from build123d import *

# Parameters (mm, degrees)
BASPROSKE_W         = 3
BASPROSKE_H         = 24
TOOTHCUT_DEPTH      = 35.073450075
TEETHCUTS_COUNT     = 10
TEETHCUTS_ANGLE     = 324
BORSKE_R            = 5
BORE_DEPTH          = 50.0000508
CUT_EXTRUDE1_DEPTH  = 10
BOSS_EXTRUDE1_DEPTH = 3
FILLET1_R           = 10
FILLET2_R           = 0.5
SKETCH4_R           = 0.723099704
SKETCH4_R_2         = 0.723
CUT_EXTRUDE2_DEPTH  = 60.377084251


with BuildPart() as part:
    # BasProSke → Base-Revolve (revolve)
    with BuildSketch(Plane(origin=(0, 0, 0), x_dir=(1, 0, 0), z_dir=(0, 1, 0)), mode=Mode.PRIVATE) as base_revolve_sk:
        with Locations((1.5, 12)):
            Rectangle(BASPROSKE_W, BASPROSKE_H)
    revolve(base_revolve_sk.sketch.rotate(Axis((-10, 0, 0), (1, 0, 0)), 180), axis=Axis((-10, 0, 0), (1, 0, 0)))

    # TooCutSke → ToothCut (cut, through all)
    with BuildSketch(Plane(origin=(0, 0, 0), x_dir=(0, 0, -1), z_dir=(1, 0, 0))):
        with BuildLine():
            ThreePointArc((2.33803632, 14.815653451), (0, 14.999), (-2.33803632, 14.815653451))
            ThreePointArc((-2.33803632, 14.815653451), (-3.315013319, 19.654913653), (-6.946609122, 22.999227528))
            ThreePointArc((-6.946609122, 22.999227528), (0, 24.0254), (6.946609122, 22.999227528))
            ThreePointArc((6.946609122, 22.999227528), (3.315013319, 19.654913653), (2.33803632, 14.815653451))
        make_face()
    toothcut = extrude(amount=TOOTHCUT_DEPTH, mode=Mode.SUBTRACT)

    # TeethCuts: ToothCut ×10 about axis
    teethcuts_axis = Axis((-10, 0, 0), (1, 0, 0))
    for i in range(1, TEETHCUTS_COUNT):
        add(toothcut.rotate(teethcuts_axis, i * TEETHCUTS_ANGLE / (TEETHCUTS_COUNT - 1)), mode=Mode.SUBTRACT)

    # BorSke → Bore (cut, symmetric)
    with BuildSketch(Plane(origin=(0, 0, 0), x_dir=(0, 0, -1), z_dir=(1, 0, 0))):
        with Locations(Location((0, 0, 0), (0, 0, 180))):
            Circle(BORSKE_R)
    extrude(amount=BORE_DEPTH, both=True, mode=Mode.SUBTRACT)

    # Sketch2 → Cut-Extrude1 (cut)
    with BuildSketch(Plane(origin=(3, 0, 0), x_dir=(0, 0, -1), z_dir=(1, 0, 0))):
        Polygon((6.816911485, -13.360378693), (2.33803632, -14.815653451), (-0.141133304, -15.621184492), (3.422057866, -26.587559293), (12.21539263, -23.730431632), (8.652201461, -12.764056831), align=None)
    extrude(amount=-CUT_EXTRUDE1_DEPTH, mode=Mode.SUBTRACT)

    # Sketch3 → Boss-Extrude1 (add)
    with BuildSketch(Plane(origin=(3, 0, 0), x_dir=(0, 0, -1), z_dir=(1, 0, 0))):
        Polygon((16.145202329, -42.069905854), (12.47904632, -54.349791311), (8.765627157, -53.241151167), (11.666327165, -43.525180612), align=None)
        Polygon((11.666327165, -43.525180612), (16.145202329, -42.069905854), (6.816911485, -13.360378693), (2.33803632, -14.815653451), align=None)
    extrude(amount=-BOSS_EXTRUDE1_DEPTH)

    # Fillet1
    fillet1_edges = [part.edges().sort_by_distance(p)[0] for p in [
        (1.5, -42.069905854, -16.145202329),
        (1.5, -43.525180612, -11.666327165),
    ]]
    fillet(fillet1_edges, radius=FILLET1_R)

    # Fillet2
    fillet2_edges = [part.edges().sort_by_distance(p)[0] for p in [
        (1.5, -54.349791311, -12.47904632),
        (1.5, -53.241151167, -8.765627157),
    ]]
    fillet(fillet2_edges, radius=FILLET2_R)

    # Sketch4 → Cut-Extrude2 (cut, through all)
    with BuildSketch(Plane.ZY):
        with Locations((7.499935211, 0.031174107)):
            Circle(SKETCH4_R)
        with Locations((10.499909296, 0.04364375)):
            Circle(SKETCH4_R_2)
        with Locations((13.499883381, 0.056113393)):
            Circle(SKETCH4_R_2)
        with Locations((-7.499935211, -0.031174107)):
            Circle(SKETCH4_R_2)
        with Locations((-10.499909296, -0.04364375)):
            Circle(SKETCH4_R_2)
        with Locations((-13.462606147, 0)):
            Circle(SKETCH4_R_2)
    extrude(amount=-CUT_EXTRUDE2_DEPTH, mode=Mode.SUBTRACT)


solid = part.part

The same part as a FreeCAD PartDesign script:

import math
import FreeCAD as App
import Part
import Sketcher

V = App.Vector
Q = App.Units.Quantity


def edges_at(feature, points):
    """Names of the edges that pass closest to the given points."""
    edges = feature.Shape.Edges
    near = lambda p: min(range(len(edges)), key=lambda i: edges[i].distToShape(Part.Vertex(*p))[0])
    return sorted({f"Edge{near(p) + 1}" for p in points})

doc = App.newDocument("Part")
body = doc.addObject("PartDesign::Body", "Body")

# Sketch on XZ plane
sketch1 = body.newObject("Sketcher::SketchObject", "Sketch")
sketch1.AttachmentSupport = (doc.getObject("XZ_Plane"), [""])
sketch1.MapMode = "FlatFace"
sketch1.addGeometry([
    Part.LineSegment(V(0, -24, 0), V(0, 0, 0)),
    Part.LineSegment(V(0, 0, 0), V(3, 0, 0)),
    Part.LineSegment(V(3, 0, 0), V(3, -24, 0)),
    Part.LineSegment(V(3, -24, 0), V(0, -24, 0)),
], False)
sketch1.addConstraint([
    Sketcher.Constraint("Coincident", 0, 2, 1, 1),
    Sketcher.Constraint("Coincident", 1, 2, 2, 1),
    Sketcher.Constraint("Coincident", 2, 2, 3, 1),
    Sketcher.Constraint("Coincident", 3, 2, 0, 1),
    Sketcher.Constraint("Vertical", 0),
    Sketcher.Constraint("Horizontal", 1),
    Sketcher.Constraint("Vertical", 2),
    Sketcher.Constraint("Horizontal", 3),
    Sketcher.Constraint("Coincident", 0, 2, -1, 1),
    Sketcher.Constraint("DistanceX", 1, 1, 1, 2, 3.0),
    Sketcher.Constraint("DistanceY", 0, 1, 0, 2, 24.0),
])
revolution = body.newObject("PartDesign::Revolution", "Revolution")
revolution.Profile = sketch1
revolution.ReferenceAxis = (sketch1, ["H_Axis"])
revolution.Angle = 360

# Sketch on YZ plane
sketch2 = body.newObject("Sketcher::SketchObject", "Sketch001")
sketch2.AttachmentSupport = (doc.getObject("YZ_Plane"), [""])
sketch2.MapMode = "FlatFace"
sketch2.addGeometry([
    Part.ArcOfCircle(Part.Circle(V(0, 0, 0), V(0, 0, 1), 15), math.radians(-8.97), math.radians(8.97)),
    Part.ArcOfCircle(Part.Circle(V(15.7, -10.3, 0), V(0, 0, 1), 8), math.radians(25), math.radians(97)),
    Part.ArcOfCircle(Part.Circle(V(0, 0, 0), V(0, 0, 1), 24), math.radians(-17), math.radians(17)),
    Part.ArcOfCircle(Part.Circle(V(15.7, 10.3, 0), V(0, 0, 1), 8), math.radians(-97), math.radians(-25)),
], False)
sketch2.addConstraint([
    Sketcher.Constraint("Coincident", 0, 1, 1, 2),
    Sketcher.Constraint("Coincident", 1, 1, 2, 1),
    Sketcher.Constraint("Coincident", 2, 2, 3, 2),
    Sketcher.Constraint("Coincident", 3, 1, 0, 2),
    Sketcher.Constraint("Coincident", 0, 3, -1, 1),
    Sketcher.Constraint("Coincident", 2, 3, -1, 1),
    Sketcher.Constraint("Equal", 1, 3),
    Sketcher.Constraint("Symmetric", 1, 3, 3, 3, -1),
    Sketcher.Constraint("Radius", 1, 8.0),
    Sketcher.Constraint("Radius", 0, 14.999),
    Sketcher.Constraint("Radius", 2, 24.0254),
    Sketcher.Constraint("DistanceY", 1, 1, -1, 1, 6.946609),
    Sketcher.Constraint("DistanceY", 0, 1, 3, 3, 12.62372),
])
pocket1 = body.newObject("PartDesign::Pocket", "Pocket")
pocket1.Profile = sketch2
pocket1.Type = "ThroughAll"
pocket1.Reversed = True
doc.recompute()

polarpattern = body.newObject("PartDesign::PolarPattern", "PolarPattern")
polarpattern.Originals = [pocket1]
polarpattern.Axis = (doc.getObject("X_Axis"), [""])
polarpattern.Angle = 360
polarpattern.Occurrences = 10
body.Tip = polarpattern

# Sketch on YZ plane
sketch3 = body.newObject("Sketcher::SketchObject", "Sketch002")
sketch3.AttachmentSupport = (doc.getObject("YZ_Plane"), [""])
sketch3.MapMode = "FlatFace"
sketch3.addGeometry(Part.Circle(V(0, 0, 0), V(0, 0, 1), 5), False)
sketch3.addConstraint([
    Sketcher.Constraint("Coincident", 0, 3, -1, 1),
    Sketcher.Constraint("Diameter", 0, 10.0),
])
pocket2 = body.newObject("PartDesign::Pocket", "Pocket001")
pocket2.Profile = sketch3
pocket2.Length = 100.000102
pocket2.Midplane = True

# Sketch on YZ plane
sketch4 = body.newObject("Sketcher::SketchObject", "Sketch003")
sketch4.AttachmentSupport = (doc.getObject("YZ_Plane"), [""])
sketch4.MapMode = "FlatFace"
sketch4.AttachmentOffset = App.Placement(V(0, 0, 3), App.Rotation())
sketch4.addGeometry([
    Part.LineSegment(V(-13.4, -6.8, 0), V(-14.8, -2.3, 0)),  # 0
    Part.LineSegment(V(-14.8, -2.3, 0), V(-15.6, 0.1, 0)),  # 1
    Part.LineSegment(V(-15.6, 0.1, 0), V(-26.6, -3.4, 0)),  # 2
    Part.LineSegment(V(-26.6, -3.4, 0), V(-23.7, -12.2, 0)),  # 3
    Part.LineSegment(V(-23.7, -12.2, 0), V(-12.8, -8.7, 0)),  # 4
    Part.LineSegment(V(-12.8, -8.7, 0), V(-13.4, -6.8, 0)),  # 5
], False)
sketch4.addConstraint([
    Sketcher.Constraint("Coincident", 0, 2, 1, 1),
    Sketcher.Constraint("Coincident", 1, 2, 2, 1),
    Sketcher.Constraint("Coincident", 2, 2, 3, 1),
    Sketcher.Constraint("Coincident", 3, 2, 4, 1),
    Sketcher.Constraint("Coincident", 4, 2, 5, 1),
    Sketcher.Constraint("Coincident", 5, 2, 0, 1),
    Sketcher.Constraint("Parallel", 0, 1),
    Sketcher.Constraint("Perpendicular", 1, 2),
    Sketcher.Constraint("Perpendicular", 2, 3),
    Sketcher.Constraint("Perpendicular", 3, 4),
    Sketcher.Constraint("Perpendicular", 4, 5),
    Sketcher.Constraint("Angle", 0, Q("108 deg")),
    Sketcher.Constraint("DistanceY", 4, 2, -1, 1, 8.652201),
    Sketcher.Constraint("Distance", 0, 4.709368),
    Sketcher.Constraint("Distance", 2, 11.530729),
    Sketcher.Constraint("Distance", 3, 9.245859),
    Sketcher.Constraint("Distance", 5, 1.929738),
    Sketcher.Constraint("DistanceX", 2, 2, -1, 1, 26.587559),
])
pocket3 = body.newObject("PartDesign::Pocket", "Pocket002")
pocket3.Profile = sketch4
pocket3.Length = 10

# Sketch on YZ plane
sketch5 = body.newObject("Sketcher::SketchObject", "Sketch004")
sketch5.AttachmentSupport = (doc.getObject("YZ_Plane"), [""])
sketch5.MapMode = "FlatFace"
sketch5.AttachmentOffset = App.Placement(V(0, 0, 3), App.Rotation())
sketch5.addGeometry([
    Part.LineSegment(V(-54.3, -12.5, 0), V(-42.1, -16.1, 0)),  # 0
    Part.LineSegment(V(-42.1, -16.1, 0), V(-13.4, -6.8, 0)),  # 1
    Part.LineSegment(V(-13.4, -6.8, 0), V(-14.8, -2.3, 0)),  # 2
    Part.LineSegment(V(-14.8, -2.3, 0), V(-43.5, -11.7, 0)),  # 3
    Part.LineSegment(V(-43.5, -11.7, 0), V(-53.2, -8.8, 0)),  # 4
    Part.LineSegment(V(-53.2, -8.8, 0), V(-54.3, -12.5, 0)),  # 5
], False)
sketch5.addConstraint([
    Sketcher.Constraint("Coincident", 0, 2, 1, 1),
    Sketcher.Constraint("Coincident", 1, 2, 2, 1),
    Sketcher.Constraint("Coincident", 2, 2, 3, 1),
    Sketcher.Constraint("Coincident", 3, 2, 4, 1),
    Sketcher.Constraint("Coincident", 4, 2, 5, 1),
    Sketcher.Constraint("Coincident", 5, 2, 0, 1),
    Sketcher.Constraint("Perpendicular", 1, 2),
    Sketcher.Constraint("Perpendicular", 2, 3),
    Sketcher.Constraint("Parallel", 0, 4),
    Sketcher.Constraint("Perpendicular", 4, 5),
    Sketcher.Constraint("Equal", 1, 3),
    Sketcher.Constraint("Angle", 1, Q("18 deg")),
    Sketcher.Constraint("DistanceX", 3, 2, 1, 2, 30.164802),
    Sketcher.Constraint("DistanceY", 3, 2, 4, 2, 2.9007),
    Sketcher.Constraint("Distance", 0, 12.815471),
    Sketcher.Constraint("Distance", 2, 4.709368),
    Sketcher.Constraint("DistanceX", 1, 2, -1, 1, 13.360379),
    Sketcher.Constraint("DistanceY", 1, 2, -1, 1, 6.816911),
])
pad1 = body.newObject("PartDesign::Pad", "Pad")
pad1.Profile = sketch5
pad1.Length = 3
pad1.Reversed = True
doc.recompute()

fillet = body.newObject("PartDesign::Fillet", "Fillet")
fillet.Base = (pad1, edges_at(pad1, [(1.5, -42.07, -16.145), (1.5, -43.525, -11.666)]))
fillet.Radius = 10
doc.recompute()

fillet2 = body.newObject("PartDesign::Fillet", "Fillet001")
fillet2.Base = (fillet, edges_at(fillet, [(1.5, -54.35, -12.479), (1.5, -53.241, -8.766)]))
fillet2.Radius = 0.5

# Sketch on YZ plane
sketch6 = body.newObject("Sketcher::SketchObject", "Sketch005")
sketch6.AttachmentSupport = (doc.getObject("YZ_Plane"), [""])
sketch6.MapMode = "FlatFace"
sketch6.addGeometry([
    Part.Circle(V(0, 7.5, 0), V(0, 0, 1), 0.7),  # 0
    Part.Circle(V(0, 10.5, 0), V(0, 0, 1), 0.7),  # 1
    Part.Circle(V(0.1, 13.5, 0), V(0, 0, 1), 0.7),  # 2
    Part.Circle(V(0, -7.5, 0), V(0, 0, 1), 0.7),  # 3
    Part.Circle(V(0, -10.5, 0), V(0, 0, 1), 0.7),  # 4
    Part.Circle(V(0, -13.5, 0), V(0, 0, 1), 0.7),  # 5
], False)
sketch6.addConstraint([
    Sketcher.Constraint("Equal", 1, 2),
    Sketcher.Constraint("Equal", 2, 3),
    Sketcher.Constraint("Equal", 3, 4),
    Sketcher.Constraint("Equal", 4, 5),
    Sketcher.Constraint("Symmetric", 0, 3, 3, 3, -1, 1),
    Sketcher.Constraint("Symmetric", 1, 3, 4, 3, -1, 1),
    Sketcher.Constraint("PointOnObject", 5, 3, -2),
    Sketcher.Constraint("Diameter", 1, 1.446),
    Sketcher.Constraint("Diameter", 0, 1.446199),
    Sketcher.Constraint("DistanceY", -1, 1, 1, 3, 10.499909),
    Sketcher.Constraint("DistanceX", 0, 3, 1, 3, 0.01247),
    Sketcher.Constraint("DistanceX", 1, 3, 2, 3, 0.01247),
    Sketcher.Constraint("DistanceY", 0, 3, 2, 3, 5.999948),
    Sketcher.Constraint("DistanceX", 3, 3, 0, 3, 0.062348),
    Sketcher.Constraint("DistanceY", 3, 3, 0, 3, 14.99987),
    Sketcher.Constraint("DistanceY", 5, 3, 3, 3, 5.962671),
])
pocket4 = body.newObject("PartDesign::Pocket", "Pocket003")
pocket4.Profile = sketch6
pocket4.Type = "ThroughAll"
pocket4.Reversed = True

doc.recompute()
